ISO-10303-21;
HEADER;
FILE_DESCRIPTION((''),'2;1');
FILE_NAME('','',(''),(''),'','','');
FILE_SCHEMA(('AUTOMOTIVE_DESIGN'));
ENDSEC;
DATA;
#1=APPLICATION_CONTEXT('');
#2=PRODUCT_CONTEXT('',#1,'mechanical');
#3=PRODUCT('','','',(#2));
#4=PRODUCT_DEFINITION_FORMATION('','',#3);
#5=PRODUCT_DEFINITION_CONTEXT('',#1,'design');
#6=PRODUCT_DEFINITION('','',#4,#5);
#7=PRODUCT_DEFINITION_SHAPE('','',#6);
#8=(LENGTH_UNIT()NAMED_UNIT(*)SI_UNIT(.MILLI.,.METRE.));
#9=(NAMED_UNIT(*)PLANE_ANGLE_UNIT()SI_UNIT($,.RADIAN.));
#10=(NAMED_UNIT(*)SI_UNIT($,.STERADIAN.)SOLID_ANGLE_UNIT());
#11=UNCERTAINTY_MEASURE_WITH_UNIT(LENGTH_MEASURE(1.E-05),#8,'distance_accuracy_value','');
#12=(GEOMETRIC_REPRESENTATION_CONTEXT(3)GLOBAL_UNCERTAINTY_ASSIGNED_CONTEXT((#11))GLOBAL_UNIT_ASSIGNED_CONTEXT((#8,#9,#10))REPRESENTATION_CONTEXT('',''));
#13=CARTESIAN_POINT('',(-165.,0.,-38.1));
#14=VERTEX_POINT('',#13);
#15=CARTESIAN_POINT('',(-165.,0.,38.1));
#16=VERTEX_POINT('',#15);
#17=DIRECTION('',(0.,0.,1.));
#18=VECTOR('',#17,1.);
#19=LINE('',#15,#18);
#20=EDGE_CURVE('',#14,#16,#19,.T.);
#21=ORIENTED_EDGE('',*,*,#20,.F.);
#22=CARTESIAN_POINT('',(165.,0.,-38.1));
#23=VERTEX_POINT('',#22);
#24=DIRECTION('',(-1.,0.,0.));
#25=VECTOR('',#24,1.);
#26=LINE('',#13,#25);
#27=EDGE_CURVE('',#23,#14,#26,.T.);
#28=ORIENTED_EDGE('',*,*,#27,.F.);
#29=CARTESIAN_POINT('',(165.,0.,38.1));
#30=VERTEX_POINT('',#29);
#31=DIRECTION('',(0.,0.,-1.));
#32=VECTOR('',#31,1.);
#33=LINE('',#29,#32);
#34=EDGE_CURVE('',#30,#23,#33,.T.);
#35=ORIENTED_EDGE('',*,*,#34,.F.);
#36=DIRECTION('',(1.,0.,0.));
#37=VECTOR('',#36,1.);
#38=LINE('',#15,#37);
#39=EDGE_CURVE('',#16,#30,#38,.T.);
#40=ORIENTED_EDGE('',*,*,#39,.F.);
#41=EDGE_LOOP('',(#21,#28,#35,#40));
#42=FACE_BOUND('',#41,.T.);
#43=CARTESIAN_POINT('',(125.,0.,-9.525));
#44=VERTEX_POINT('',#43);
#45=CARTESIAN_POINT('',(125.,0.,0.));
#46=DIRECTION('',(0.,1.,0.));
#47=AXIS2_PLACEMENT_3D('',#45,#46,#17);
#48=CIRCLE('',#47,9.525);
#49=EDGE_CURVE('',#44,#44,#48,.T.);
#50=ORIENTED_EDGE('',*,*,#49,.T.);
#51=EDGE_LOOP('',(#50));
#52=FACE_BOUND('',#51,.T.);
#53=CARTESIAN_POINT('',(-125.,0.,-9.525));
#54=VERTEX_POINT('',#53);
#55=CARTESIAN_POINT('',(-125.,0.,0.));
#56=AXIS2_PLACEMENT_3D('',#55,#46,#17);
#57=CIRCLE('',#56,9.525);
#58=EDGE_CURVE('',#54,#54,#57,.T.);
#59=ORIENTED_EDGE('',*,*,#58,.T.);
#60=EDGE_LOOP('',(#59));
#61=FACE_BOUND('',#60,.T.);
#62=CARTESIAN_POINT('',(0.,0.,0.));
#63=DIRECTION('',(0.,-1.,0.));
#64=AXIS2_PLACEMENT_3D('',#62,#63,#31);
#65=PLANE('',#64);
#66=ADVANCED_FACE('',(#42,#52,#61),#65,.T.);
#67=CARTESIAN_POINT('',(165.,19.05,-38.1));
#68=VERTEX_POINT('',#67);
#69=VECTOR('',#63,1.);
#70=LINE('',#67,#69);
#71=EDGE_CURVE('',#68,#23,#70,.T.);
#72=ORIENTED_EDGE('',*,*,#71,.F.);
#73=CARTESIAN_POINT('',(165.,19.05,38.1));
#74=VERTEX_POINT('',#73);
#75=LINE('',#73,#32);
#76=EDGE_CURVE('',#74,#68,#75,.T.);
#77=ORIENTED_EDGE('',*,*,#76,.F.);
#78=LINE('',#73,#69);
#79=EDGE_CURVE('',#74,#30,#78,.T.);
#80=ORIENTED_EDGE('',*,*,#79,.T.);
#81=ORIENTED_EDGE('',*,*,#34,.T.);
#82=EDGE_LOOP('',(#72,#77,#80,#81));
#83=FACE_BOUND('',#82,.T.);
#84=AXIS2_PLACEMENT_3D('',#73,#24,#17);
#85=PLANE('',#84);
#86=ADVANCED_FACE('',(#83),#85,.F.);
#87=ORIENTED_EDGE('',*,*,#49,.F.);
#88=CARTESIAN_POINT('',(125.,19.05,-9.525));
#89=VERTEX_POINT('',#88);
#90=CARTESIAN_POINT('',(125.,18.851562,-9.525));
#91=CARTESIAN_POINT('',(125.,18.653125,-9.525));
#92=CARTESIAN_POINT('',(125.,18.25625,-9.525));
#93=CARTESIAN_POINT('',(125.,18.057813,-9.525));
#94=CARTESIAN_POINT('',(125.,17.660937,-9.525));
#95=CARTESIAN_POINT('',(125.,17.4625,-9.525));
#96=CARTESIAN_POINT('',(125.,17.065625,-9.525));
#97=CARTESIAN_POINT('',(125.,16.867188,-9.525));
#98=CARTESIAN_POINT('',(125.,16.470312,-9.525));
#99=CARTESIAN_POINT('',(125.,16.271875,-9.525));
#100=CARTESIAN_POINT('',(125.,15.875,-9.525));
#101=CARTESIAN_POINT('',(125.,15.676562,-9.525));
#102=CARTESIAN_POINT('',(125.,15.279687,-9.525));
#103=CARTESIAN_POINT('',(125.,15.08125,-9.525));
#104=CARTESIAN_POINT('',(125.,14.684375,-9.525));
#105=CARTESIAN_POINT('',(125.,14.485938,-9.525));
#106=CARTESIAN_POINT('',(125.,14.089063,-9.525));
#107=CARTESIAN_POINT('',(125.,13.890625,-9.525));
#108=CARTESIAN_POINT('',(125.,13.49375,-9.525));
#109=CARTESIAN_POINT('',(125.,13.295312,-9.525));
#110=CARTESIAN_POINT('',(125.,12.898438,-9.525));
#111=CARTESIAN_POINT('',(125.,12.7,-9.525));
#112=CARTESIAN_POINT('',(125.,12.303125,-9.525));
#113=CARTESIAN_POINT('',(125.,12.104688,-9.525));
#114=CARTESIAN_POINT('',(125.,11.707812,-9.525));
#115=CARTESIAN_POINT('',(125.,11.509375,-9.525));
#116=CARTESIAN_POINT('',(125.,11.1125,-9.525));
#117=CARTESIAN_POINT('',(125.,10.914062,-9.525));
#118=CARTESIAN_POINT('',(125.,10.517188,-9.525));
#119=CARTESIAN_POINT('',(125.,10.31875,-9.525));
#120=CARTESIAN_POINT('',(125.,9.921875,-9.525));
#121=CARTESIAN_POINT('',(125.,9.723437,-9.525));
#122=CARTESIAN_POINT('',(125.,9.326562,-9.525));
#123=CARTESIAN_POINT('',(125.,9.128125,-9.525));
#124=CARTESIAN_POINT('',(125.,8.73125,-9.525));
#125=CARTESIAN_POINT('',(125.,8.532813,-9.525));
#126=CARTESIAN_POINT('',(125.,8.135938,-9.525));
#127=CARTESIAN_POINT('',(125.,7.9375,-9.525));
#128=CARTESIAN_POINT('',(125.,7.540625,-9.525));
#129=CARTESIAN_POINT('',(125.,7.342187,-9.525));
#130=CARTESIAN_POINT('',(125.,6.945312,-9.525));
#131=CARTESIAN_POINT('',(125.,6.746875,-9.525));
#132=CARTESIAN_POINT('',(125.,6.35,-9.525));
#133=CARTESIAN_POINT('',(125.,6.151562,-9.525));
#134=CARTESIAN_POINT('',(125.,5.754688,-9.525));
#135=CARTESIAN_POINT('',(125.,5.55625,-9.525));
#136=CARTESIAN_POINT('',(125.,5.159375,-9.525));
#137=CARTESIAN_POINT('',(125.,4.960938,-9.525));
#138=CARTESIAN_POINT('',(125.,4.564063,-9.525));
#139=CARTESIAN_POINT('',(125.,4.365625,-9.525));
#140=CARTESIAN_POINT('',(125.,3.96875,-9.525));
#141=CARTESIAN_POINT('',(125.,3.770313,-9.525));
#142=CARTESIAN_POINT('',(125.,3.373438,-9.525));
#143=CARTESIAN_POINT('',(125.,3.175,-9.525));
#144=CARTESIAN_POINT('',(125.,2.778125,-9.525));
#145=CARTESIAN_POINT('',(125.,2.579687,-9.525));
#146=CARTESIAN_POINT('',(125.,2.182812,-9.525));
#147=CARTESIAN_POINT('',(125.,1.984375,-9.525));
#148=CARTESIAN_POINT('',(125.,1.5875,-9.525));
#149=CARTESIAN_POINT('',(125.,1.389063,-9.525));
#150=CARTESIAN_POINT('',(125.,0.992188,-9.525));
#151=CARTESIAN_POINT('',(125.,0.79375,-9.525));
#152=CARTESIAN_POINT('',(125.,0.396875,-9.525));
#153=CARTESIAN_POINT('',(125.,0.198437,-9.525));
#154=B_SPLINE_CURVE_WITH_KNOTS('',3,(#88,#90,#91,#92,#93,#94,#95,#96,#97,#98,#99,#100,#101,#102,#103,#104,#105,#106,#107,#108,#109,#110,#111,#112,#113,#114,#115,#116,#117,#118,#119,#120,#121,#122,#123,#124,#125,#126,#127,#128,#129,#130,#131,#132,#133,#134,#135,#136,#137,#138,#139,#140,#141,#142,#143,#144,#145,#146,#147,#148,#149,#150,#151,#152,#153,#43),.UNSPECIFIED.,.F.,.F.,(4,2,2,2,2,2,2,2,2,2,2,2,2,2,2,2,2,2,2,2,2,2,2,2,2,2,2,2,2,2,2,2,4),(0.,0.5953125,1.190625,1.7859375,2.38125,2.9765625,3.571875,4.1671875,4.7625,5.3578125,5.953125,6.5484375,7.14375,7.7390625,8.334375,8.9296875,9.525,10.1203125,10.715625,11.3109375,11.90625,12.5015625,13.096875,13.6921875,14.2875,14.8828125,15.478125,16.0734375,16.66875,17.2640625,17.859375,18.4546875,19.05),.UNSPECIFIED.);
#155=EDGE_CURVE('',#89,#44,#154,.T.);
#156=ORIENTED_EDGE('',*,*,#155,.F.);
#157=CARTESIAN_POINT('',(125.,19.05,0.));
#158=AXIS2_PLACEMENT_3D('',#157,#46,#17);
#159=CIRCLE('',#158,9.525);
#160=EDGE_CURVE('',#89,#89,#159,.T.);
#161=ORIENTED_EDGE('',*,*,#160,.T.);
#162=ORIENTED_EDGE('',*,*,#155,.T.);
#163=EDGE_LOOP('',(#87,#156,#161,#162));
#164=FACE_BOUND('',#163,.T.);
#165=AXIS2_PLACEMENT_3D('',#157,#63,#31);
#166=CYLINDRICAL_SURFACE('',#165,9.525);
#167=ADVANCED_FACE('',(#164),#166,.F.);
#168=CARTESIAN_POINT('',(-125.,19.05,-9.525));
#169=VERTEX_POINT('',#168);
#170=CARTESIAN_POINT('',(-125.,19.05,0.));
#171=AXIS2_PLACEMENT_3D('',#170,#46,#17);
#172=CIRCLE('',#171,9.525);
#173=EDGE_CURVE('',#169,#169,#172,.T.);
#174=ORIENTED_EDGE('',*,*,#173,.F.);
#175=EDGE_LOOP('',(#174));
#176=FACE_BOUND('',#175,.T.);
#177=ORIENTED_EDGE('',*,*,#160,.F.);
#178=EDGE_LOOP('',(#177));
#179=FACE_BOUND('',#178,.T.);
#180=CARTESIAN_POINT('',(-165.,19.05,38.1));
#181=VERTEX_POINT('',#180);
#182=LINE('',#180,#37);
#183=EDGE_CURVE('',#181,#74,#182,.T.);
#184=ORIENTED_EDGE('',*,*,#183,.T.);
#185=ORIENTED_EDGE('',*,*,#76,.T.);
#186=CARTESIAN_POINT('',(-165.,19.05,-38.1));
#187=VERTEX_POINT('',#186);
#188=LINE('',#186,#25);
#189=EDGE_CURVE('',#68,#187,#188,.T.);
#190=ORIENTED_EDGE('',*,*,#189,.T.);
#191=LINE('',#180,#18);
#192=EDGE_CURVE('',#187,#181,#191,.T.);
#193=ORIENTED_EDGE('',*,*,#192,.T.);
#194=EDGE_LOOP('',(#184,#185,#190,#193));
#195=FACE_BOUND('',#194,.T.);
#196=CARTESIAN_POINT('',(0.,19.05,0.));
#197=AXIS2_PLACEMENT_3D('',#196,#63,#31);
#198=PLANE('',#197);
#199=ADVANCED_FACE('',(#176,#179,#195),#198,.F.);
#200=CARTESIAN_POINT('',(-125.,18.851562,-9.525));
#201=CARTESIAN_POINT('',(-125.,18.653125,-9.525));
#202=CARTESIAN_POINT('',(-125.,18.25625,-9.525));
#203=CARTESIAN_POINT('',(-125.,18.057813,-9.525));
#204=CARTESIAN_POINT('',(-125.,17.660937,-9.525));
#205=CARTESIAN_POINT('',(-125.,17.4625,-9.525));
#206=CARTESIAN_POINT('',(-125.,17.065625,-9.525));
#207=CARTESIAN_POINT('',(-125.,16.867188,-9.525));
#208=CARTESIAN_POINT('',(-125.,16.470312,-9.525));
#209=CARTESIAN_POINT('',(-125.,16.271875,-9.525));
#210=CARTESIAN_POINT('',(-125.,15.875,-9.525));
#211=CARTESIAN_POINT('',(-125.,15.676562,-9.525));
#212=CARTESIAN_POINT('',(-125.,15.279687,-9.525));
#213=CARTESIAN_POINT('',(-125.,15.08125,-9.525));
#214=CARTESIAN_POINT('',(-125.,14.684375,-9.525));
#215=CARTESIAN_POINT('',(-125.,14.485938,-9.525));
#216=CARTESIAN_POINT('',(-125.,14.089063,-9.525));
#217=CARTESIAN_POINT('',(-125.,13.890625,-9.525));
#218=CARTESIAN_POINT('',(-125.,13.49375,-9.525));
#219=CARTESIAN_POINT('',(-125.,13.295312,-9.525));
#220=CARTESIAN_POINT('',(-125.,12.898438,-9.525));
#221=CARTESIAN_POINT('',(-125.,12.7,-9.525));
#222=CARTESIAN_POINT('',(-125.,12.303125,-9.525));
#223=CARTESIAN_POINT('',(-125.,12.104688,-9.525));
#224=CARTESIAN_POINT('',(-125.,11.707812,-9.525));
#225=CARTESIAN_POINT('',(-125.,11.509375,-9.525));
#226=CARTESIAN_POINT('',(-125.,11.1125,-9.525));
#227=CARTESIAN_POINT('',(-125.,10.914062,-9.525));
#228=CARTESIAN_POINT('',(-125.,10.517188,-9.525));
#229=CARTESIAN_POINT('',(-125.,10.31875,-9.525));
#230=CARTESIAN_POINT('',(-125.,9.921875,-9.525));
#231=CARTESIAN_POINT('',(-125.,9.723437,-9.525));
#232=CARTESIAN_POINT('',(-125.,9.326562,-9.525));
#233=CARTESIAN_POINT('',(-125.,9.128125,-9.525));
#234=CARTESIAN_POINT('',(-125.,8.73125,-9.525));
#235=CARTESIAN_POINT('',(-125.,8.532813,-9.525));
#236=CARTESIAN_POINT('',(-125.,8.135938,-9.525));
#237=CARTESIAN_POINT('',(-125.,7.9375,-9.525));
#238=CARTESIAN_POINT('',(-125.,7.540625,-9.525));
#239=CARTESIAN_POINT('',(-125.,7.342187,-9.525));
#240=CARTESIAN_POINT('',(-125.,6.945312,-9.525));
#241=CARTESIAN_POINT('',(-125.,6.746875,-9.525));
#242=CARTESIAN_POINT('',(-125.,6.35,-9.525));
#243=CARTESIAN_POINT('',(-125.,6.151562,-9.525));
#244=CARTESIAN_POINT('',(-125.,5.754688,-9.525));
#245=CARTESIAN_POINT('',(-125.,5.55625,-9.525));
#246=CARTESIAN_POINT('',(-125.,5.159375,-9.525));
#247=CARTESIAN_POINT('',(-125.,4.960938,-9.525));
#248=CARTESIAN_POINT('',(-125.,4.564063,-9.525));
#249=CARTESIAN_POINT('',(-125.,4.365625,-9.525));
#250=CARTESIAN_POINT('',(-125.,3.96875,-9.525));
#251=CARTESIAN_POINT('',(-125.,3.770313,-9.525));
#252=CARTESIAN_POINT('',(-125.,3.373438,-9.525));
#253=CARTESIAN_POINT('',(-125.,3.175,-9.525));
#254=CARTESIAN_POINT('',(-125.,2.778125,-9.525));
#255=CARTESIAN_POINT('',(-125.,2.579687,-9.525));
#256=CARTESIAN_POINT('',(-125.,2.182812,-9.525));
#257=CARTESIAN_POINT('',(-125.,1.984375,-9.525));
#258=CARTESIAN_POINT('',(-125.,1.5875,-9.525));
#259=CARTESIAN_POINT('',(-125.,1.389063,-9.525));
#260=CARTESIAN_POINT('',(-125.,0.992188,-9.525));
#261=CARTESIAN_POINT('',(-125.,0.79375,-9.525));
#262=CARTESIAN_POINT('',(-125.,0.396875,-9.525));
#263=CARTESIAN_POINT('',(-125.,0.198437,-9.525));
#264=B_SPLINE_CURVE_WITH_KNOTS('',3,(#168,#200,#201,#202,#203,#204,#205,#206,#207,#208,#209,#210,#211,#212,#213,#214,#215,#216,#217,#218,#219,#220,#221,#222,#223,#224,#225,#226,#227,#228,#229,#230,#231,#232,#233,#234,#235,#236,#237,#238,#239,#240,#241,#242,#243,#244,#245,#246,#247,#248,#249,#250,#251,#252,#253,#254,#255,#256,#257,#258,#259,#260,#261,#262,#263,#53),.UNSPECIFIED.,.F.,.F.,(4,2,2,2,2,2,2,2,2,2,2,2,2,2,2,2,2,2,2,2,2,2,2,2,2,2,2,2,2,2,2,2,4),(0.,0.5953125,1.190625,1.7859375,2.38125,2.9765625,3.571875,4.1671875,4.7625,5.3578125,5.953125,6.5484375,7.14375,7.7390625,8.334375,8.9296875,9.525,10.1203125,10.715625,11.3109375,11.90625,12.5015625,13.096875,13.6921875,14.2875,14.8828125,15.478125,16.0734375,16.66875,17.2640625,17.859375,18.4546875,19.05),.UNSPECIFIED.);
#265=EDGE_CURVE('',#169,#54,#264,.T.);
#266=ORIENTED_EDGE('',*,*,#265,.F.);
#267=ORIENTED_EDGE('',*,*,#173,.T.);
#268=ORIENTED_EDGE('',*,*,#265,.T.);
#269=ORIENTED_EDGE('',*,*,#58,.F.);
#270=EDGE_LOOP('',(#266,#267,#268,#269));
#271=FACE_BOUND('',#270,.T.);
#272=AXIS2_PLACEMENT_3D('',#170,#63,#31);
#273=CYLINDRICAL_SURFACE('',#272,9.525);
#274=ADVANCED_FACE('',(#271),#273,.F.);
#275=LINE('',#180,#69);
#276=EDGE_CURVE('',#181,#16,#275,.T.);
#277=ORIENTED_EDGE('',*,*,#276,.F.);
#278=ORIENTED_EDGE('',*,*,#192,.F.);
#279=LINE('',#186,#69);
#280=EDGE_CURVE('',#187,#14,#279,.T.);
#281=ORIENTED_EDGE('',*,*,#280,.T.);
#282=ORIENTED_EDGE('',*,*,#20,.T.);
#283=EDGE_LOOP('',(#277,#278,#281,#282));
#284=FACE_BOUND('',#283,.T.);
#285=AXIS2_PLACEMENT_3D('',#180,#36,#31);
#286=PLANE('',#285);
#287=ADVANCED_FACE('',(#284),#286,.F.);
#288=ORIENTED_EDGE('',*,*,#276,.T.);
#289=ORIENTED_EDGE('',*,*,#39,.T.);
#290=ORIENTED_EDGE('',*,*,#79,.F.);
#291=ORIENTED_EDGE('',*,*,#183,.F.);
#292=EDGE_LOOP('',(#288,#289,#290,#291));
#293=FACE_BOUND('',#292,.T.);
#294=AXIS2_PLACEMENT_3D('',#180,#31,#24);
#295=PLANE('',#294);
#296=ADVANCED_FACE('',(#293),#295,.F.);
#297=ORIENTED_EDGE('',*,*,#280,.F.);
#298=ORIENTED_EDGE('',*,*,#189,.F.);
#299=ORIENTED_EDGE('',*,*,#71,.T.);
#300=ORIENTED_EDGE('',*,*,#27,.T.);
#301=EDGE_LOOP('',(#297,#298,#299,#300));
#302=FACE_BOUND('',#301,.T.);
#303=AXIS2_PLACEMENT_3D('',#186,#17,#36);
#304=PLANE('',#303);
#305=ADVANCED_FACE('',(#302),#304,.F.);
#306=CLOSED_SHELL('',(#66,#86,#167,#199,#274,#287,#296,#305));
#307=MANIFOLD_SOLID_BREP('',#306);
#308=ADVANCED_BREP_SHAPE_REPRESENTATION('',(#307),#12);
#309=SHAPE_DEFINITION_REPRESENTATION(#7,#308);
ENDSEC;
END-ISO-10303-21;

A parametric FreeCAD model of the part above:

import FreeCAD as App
import Part
import Sketcher

V = App.Vector
Q = App.Units.Quantity


def add_polygon(sketch, points):
    """Adds a closed chain of lines whose ends are joined by coincident constraints."""
    first, n = sketch.GeometryCount, len(points)
    for a, b in zip(points, points[1:] + points[:1]):
        sketch.addGeometry(Part.LineSegment(App.Vector(*a, 0), App.Vector(*b, 0)), False)
    for i in range(n):
        sketch.addConstraint(Sketcher.Constraint("Coincident", first + i, 2, first + (i + 1) % n, 1))

doc = App.newDocument("Part")
body = doc.addObject("PartDesign::Body", "Body")

# Sketch on XZ plane
sketch1 = body.newObject("Sketcher::SketchObject", "Sketch")
sketch1.AttachmentSupport = (doc.getObject("XZ_Plane"), [""])
sketch1.MapMode = "FlatFace"
add_polygon(sketch1, [(-165, -38.1), (-165, 38.1), (165, 38.1), (165, -38.1)])  # lines 0-3
sketch1.addGeometry(Part.Circle(V(-125, 0, 0), V(0, 0, 1), 9.525), False)  # 4
sketch1.addGeometry(Part.Circle(V(125, 0, 0), V(0, 0, 1), 9.525), False)  # 5
sketch1.addConstraint([
    Sketcher.Constraint("Vertical", 0),
    Sketcher.Constraint("Horizontal", 1),
    Sketcher.Constraint("Vertical", 2),
    Sketcher.Constraint("Horizontal", 3),
    Sketcher.Constraint("Equal", 4, 5),
    Sketcher.Constraint("Symmetric", 4, 3, 5, 3, -1, 1),
    Sketcher.Constraint("Symmetric", 0, 2, 2, 2, -1, 1),
    Sketcher.Constraint("PointOnObject", 4, 3, -1),
    Sketcher.Constraint("Diameter", 4, Q("0.75 in")),
    Sketcher.Constraint("DistanceY", 0, 1, 0, 2, Q("3 in")),
    Sketcher.Constraint("DistanceX", 1, 1, 1, 2, Q("330 mm")),
    Sketcher.Constraint("DistanceX", 4, 3, -1, 1, Q("125 mm")),
])
pad1 = body.newObject("PartDesign::Pad", "Pad")
pad1.Profile = sketch1
pad1.Length = Q("0.75 in")
pad1.Reversed = True

doc.recompute()
